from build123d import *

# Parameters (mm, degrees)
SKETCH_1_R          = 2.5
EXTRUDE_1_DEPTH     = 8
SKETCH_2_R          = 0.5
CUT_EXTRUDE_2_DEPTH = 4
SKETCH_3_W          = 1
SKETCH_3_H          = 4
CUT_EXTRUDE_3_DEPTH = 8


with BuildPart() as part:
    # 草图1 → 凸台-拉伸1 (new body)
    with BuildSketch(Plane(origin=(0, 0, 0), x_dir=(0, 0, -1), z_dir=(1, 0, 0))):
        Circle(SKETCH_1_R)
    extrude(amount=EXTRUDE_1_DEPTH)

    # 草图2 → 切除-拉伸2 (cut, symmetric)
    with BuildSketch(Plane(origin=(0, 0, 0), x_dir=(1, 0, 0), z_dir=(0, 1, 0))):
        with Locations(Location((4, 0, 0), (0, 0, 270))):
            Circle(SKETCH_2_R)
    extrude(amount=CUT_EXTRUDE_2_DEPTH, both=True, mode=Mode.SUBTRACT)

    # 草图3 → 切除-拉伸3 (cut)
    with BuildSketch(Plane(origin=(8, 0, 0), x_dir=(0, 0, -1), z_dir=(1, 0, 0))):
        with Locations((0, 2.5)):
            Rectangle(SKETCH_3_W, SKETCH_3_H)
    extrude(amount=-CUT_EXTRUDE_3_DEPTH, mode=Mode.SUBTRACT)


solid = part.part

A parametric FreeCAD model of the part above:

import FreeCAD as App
import Part
import Sketcher

V = App.Vector

doc = App.newDocument("Part")
body = doc.addObject("PartDesign::Body", "Body")

sketch1 = body.newObject("Sketcher::SketchObject", "Sketch")
sketch1.AttachmentSupport = (doc.getObject("YZ_Plane"), [""])
sketch1.MapMode = "FlatFace"
sketch1.addGeometry(Part.Circle(V(0, 0, 0), V(0, 0, 1), 2.5), False)
sketch1.addConstraint(Sketcher.Constraint("Coincident", 0, 3, -1, 1))
sketch1.addConstraint(Sketcher.Constraint("Diameter", 0, 5.0))
pad1 = body.newObject("PartDesign::Pad", "Pad")
pad1.Profile = sketch1
pad1.Length = 8

sketch2 = body.newObject("Sketcher::SketchObject", "Sketch001")
sketch2.AttachmentSupport = (doc.getObject("XZ_Plane"), [""])
sketch2.MapMode = "FlatFace"
sketch2.addGeometry(Part.Circle(V(4, 0, 0), V(0, 0, 1), 0.5), False)
sketch2.addConstraint(Sketcher.Constraint("PointOnObject", 0, 3, -1))
sketch2.addConstraint(Sketcher.Constraint("Diameter", 0, 1.0))
sketch2.addConstraint(Sketcher.Constraint("DistanceX", -1, 1, 0, 3, 4.0))
pocket1 = body.newObject("PartDesign::Pocket", "Pocket")
pocket1.Profile = sketch2
pocket1.Length = 8
pocket1.Midplane = True

sketch3 = body.newObject("Sketcher::SketchObject", "Sketch002")
sketch3.AttachmentSupport = (doc.getObject("YZ_Plane"), [""])
sketch3.MapMode = "FlatFace"
sketch3.AttachmentOffset = App.Placement(V(0, 0, 8), App.Rotation())
sketch3.addGeometry(Part.LineSegment(V(4.5, 0.5, 0), V(0.5, 0.5, 0)), False)
sketch3.addGeometry(Part.LineSegment(V(0.5, 0.5, 0), V(0.5, -0.5, 0)), False)
sketch3.addGeometry(Part.LineSegment(V(0.5, -0.5, 0), V(4.5, -0.5, 0)), False)
sketch3.addGeometry(Part.LineSegment(V(4.5, -0.5, 0), V(4.5, 0.5, 0)), False)
sketch3.addConstraint(Sketcher.Constraint("Coincident", 0, 2, 1, 1))
sketch3.addConstraint(Sketcher.Constraint("Coincident", 1, 2, 2, 1))
sketch3.addConstraint(Sketcher.Constraint("Coincident", 2, 2, 3, 1))
sketch3.addConstraint(Sketcher.Constraint("Coincident", 3, 2, 0, 1))
sketch3.addConstraint(Sketcher.Constraint("Horizontal", 0))
sketch3.addConstraint(Sketcher.Constraint("Vertical", 1))
sketch3.addConstraint(Sketcher.Constraint("Horizontal", 2))
sketch3.addConstraint(Sketcher.Constraint("Vertical", 3))
sketch3.addConstraint(Sketcher.Constraint("DistanceX", 0, 2, 0, 1, 4.0))
sketch3.addConstraint(Sketcher.Constraint("DistanceY", 1, 2, 1, 1, 1.0))
sketch3.addConstraint(Sketcher.Constraint("DistanceX", -1, 1, 0, 2, 0.5))
sketch3.addConstraint(Sketcher.Constraint("DistanceY", -1, 1, 0, 2, 0.5))
pocket2 = body.newObject("PartDesign::Pocket", "Pocket001")
pocket2.Profile = sketch3
pocket2.Length = 8

doc.recompute()
